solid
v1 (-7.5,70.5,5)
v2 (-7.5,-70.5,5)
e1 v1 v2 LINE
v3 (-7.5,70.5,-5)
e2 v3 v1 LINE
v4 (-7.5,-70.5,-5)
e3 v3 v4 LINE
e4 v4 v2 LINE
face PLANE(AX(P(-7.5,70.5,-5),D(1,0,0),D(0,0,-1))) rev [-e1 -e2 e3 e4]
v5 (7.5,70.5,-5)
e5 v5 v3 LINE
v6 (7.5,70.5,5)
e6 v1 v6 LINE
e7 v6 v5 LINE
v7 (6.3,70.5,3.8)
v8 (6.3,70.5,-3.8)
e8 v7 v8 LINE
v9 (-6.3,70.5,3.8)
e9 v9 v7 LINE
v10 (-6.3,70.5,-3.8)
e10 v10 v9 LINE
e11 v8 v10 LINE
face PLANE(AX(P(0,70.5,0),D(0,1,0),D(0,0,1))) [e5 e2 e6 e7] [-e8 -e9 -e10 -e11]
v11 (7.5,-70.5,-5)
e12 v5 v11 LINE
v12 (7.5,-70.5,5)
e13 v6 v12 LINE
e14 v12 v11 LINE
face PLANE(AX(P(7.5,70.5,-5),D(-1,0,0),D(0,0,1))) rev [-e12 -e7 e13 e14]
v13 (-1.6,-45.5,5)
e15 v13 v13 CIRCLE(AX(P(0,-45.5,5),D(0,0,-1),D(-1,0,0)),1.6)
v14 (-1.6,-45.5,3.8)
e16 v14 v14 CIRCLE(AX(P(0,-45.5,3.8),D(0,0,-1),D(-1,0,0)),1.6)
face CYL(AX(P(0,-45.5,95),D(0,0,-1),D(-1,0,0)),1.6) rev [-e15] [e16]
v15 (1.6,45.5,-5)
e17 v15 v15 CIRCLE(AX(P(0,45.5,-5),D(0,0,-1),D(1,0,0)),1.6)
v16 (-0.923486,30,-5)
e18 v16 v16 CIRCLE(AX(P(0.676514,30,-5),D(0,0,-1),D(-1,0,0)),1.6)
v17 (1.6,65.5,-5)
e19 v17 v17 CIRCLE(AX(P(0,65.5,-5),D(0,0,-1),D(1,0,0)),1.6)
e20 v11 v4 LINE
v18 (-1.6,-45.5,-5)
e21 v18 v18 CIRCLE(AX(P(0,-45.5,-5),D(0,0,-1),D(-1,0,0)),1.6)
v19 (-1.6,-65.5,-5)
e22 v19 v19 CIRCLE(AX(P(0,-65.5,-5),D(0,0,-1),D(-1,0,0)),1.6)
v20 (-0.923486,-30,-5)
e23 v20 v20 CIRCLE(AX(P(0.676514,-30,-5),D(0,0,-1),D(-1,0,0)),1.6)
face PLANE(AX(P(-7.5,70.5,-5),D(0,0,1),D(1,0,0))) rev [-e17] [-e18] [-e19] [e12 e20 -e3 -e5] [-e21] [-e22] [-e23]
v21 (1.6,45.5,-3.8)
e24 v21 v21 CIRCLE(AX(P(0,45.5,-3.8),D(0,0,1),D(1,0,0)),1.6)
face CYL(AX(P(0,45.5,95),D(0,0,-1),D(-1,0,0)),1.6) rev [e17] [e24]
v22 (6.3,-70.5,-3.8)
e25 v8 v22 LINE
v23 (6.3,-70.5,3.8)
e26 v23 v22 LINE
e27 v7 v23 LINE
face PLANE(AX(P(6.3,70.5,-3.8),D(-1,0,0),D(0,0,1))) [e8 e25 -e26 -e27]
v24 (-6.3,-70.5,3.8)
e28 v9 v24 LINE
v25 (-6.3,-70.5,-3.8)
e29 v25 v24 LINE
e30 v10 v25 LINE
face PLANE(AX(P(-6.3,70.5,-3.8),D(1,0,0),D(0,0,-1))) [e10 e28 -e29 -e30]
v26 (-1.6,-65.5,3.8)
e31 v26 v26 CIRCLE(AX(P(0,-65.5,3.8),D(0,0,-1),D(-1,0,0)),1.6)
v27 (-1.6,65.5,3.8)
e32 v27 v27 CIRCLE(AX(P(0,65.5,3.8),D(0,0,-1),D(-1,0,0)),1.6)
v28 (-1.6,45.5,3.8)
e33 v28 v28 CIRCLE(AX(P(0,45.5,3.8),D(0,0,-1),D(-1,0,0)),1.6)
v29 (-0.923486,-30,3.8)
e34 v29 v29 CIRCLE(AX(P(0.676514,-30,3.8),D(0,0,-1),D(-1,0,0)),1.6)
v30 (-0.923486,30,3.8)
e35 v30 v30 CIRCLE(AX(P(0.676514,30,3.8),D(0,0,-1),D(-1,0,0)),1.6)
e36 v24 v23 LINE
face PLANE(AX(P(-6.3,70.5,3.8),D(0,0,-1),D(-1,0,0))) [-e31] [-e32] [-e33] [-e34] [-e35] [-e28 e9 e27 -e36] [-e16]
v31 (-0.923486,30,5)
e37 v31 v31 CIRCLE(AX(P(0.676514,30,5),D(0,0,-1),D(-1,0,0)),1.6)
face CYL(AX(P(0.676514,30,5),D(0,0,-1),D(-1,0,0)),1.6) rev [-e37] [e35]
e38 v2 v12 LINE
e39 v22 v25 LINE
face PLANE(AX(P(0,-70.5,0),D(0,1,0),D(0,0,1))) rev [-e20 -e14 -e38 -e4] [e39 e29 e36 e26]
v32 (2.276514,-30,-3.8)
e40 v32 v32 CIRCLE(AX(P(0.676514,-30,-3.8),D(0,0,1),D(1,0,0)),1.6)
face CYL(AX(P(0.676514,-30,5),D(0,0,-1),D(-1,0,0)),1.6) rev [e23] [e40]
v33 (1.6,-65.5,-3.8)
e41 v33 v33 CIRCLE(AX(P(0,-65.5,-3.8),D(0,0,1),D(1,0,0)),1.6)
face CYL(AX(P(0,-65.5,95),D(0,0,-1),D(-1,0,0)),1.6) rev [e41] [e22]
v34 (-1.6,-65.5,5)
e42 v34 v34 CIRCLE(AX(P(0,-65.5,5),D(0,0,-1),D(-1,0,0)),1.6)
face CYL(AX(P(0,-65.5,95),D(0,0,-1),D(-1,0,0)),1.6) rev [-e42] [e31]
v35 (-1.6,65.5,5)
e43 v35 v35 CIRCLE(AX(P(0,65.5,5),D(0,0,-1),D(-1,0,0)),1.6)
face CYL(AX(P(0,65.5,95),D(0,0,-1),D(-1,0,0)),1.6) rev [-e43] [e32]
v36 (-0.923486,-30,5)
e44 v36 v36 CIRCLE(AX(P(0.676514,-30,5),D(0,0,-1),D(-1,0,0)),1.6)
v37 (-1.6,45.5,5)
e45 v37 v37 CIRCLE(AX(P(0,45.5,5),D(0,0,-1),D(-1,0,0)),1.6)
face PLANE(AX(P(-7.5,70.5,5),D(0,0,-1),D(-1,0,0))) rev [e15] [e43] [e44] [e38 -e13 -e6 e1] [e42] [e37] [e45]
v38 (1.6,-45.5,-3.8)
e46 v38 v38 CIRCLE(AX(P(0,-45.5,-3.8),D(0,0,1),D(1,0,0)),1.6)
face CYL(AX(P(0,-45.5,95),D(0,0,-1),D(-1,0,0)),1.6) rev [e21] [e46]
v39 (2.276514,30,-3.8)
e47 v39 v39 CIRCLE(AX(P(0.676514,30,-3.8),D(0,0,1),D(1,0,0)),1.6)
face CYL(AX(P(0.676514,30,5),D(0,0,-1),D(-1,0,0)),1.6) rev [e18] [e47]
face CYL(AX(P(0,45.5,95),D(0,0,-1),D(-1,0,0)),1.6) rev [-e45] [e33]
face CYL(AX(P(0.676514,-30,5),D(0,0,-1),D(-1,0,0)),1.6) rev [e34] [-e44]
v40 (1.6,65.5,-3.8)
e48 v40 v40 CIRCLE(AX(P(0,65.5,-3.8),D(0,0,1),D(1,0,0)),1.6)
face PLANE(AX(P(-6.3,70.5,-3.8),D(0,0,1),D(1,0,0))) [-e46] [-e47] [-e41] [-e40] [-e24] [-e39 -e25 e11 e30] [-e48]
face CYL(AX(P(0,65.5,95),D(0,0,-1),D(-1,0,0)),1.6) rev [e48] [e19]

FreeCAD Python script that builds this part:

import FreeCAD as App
import Part
import Sketcher
Q = App.Units.Quantity


def add_polygon(sketch, points):
    """Adds a closed chain of lines whose ends are joined by coincident constraints."""
    first, n = sketch.GeometryCount, len(points)
    for a, b in zip(points, points[1:] + points[:1]):
        sketch.addGeometry(Part.LineSegment(App.Vector(*a, 0), App.Vector(*b, 0)), False)
    for i in range(n):
        sketch.addConstraint(Sketcher.Constraint("Coincident", first + i, 2, first + (i + 1) % n, 1))

doc = App.newDocument("Part")
body = doc.addObject("PartDesign::Body", "Body")

# Sketch on XZ plane
sketch1 = doc.addObject("Sketcher::SketchObject", "Sketch")
body.addObject(sketch1)
sketch1.AttachmentSupport = (doc.XZ_Plane, [""])
sketch1.MapMode = "FlatFace"
add_polygon(sketch1, [(-8, -5), (-8, 5), (8, 5), (8, -5)])  # lines 0-3
add_polygon(sketch1, [(6, 4), (-6, 4), (-6, -4), (6, -4)])  # lines 4-7
sketch1.addConstraint([
    Sketcher.Constraint("Vertical", 0),
    Sketcher.Constraint("Horizontal", 1),
    Sketcher.Constraint("Vertical", 2),
    Sketcher.Constraint("Horizontal", 3),
    Sketcher.Constraint("Horizontal", 4),
    Sketcher.Constraint("Vertical", 5),
    Sketcher.Constraint("Horizontal", 6),
    Sketcher.Constraint("Vertical", 7),
    Sketcher.Constraint("Symmetric", 0, 2, 2, 2, -1, 1),
    Sketcher.Constraint("Symmetric", 4, 2, 6, 2, -1, 1),
    Sketcher.Constraint("DistanceX", 1, 1, 1, 2, Q("15 mm")),
    Sketcher.Constraint("DistanceY", 0, 1, 0, 2, Q("10 mm")),
    Sketcher.Constraint("DistanceX", 4, 2, 4, 1, Q("12.6 mm")),
    Sketcher.Constraint("DistanceY", 5, 2, 5, 1, Q("7.6 mm")),
])
pad1 = doc.addObject("PartDesign::Pad", "Pad")
body.addObject(pad1)
pad1.Profile = sketch1
pad1.Length = 141
pad1.Midplane = True

# Sketch on XY plane
sketch2 = doc.addObject("Sketcher::SketchObject", "Sketch001")
body.addObject(sketch2)
sketch2.AttachmentSupport = (doc.XY_Plane, [""])
sketch2.MapMode = "FlatFace"
sketch2.AttachmentOffset = App.Placement(App.Vector(0, 0, -5), App.Rotation())
sketch2.addGeometry([
    Part.Circle(App.Vector(0, -65.5, 0), App.Vector(0, 0, 1), 1.6),
    Part.Circle(App.Vector(0, -45.5, 0), App.Vector(0, 0, 1), 1.6),
    Part.Circle(App.Vector(0, 45.5, 0), App.Vector(0, 0, 1), 1.6),
    Part.Circle(App.Vector(0, 65.5, 0), App.Vector(0, 0, 1), 1.6),
], False)
sketch2.addConstraint([
    Sketcher.Constraint("Equal", 0, 1),
    Sketcher.Constraint("Equal", 1, 2),
    Sketcher.Constraint("Equal", 2, 3),
    Sketcher.Constraint("Symmetric", 1, 3, 2, 3, -1, 1),
    Sketcher.Constraint("Symmetric", 0, 3, 3, 3, -1, 1),
    Sketcher.Constraint("PointOnObject", 0, 3, -2),
    Sketcher.Constraint("PointOnObject", 1, 3, -2),
    Sketcher.Constraint("Diameter", 0, Q("3.2 mm")),
    Sketcher.Constraint("DistanceY", 0, 3, 1, 3, Q("20 mm")),
    Sketcher.Constraint("DistanceY", 1, 3, 2, 3, Q("91 mm")),
])
pocket1 = doc.addObject("PartDesign::Pocket", "Pocket")
body.addObject(pocket1)
pocket1.Profile = sketch2
pocket1.Length = 100
pocket1.Reversed = True

# Sketch on XY plane
sketch3 = doc.addObject("Sketcher::SketchObject", "Sketch002")
body.addObject(sketch3)
sketch3.AttachmentSupport = (doc.XY_Plane, [""])
sketch3.MapMode = "FlatFace"
sketch3.AttachmentOffset = App.Placement(App.Vector(0, 0, -5), App.Rotation())
sketch3.addGeometry([
    Part.Circle(App.Vector(0.7, -30, 0), App.Vector(0, 0, 1), 1.6),
    Part.Circle(App.Vector(0.7, 30, 0), App.Vector(0, 0, 1), 1.6),
], False)
sketch3.addConstraint([
    Sketcher.Constraint("Equal", 0, 1),
    Sketcher.Constraint("Symmetric", 0, 3, 1, 3, -1),
    Sketcher.Constraint("Diameter", 0, Q("3.2 mm")),
    Sketcher.Constraint("DistanceY", 0, 3, -1, 1, Q("30 mm")),
    Sketcher.Constraint("DistanceX", -1, 1, 0, 3, Q("0.676514 mm")),
])
pocket2 = doc.addObject("PartDesign::Pocket", "Pocket001")
body.addObject(pocket2)
pocket2.Profile = sketch3
pocket2.Length = 10
pocket2.Reversed = True

doc.recompute()
